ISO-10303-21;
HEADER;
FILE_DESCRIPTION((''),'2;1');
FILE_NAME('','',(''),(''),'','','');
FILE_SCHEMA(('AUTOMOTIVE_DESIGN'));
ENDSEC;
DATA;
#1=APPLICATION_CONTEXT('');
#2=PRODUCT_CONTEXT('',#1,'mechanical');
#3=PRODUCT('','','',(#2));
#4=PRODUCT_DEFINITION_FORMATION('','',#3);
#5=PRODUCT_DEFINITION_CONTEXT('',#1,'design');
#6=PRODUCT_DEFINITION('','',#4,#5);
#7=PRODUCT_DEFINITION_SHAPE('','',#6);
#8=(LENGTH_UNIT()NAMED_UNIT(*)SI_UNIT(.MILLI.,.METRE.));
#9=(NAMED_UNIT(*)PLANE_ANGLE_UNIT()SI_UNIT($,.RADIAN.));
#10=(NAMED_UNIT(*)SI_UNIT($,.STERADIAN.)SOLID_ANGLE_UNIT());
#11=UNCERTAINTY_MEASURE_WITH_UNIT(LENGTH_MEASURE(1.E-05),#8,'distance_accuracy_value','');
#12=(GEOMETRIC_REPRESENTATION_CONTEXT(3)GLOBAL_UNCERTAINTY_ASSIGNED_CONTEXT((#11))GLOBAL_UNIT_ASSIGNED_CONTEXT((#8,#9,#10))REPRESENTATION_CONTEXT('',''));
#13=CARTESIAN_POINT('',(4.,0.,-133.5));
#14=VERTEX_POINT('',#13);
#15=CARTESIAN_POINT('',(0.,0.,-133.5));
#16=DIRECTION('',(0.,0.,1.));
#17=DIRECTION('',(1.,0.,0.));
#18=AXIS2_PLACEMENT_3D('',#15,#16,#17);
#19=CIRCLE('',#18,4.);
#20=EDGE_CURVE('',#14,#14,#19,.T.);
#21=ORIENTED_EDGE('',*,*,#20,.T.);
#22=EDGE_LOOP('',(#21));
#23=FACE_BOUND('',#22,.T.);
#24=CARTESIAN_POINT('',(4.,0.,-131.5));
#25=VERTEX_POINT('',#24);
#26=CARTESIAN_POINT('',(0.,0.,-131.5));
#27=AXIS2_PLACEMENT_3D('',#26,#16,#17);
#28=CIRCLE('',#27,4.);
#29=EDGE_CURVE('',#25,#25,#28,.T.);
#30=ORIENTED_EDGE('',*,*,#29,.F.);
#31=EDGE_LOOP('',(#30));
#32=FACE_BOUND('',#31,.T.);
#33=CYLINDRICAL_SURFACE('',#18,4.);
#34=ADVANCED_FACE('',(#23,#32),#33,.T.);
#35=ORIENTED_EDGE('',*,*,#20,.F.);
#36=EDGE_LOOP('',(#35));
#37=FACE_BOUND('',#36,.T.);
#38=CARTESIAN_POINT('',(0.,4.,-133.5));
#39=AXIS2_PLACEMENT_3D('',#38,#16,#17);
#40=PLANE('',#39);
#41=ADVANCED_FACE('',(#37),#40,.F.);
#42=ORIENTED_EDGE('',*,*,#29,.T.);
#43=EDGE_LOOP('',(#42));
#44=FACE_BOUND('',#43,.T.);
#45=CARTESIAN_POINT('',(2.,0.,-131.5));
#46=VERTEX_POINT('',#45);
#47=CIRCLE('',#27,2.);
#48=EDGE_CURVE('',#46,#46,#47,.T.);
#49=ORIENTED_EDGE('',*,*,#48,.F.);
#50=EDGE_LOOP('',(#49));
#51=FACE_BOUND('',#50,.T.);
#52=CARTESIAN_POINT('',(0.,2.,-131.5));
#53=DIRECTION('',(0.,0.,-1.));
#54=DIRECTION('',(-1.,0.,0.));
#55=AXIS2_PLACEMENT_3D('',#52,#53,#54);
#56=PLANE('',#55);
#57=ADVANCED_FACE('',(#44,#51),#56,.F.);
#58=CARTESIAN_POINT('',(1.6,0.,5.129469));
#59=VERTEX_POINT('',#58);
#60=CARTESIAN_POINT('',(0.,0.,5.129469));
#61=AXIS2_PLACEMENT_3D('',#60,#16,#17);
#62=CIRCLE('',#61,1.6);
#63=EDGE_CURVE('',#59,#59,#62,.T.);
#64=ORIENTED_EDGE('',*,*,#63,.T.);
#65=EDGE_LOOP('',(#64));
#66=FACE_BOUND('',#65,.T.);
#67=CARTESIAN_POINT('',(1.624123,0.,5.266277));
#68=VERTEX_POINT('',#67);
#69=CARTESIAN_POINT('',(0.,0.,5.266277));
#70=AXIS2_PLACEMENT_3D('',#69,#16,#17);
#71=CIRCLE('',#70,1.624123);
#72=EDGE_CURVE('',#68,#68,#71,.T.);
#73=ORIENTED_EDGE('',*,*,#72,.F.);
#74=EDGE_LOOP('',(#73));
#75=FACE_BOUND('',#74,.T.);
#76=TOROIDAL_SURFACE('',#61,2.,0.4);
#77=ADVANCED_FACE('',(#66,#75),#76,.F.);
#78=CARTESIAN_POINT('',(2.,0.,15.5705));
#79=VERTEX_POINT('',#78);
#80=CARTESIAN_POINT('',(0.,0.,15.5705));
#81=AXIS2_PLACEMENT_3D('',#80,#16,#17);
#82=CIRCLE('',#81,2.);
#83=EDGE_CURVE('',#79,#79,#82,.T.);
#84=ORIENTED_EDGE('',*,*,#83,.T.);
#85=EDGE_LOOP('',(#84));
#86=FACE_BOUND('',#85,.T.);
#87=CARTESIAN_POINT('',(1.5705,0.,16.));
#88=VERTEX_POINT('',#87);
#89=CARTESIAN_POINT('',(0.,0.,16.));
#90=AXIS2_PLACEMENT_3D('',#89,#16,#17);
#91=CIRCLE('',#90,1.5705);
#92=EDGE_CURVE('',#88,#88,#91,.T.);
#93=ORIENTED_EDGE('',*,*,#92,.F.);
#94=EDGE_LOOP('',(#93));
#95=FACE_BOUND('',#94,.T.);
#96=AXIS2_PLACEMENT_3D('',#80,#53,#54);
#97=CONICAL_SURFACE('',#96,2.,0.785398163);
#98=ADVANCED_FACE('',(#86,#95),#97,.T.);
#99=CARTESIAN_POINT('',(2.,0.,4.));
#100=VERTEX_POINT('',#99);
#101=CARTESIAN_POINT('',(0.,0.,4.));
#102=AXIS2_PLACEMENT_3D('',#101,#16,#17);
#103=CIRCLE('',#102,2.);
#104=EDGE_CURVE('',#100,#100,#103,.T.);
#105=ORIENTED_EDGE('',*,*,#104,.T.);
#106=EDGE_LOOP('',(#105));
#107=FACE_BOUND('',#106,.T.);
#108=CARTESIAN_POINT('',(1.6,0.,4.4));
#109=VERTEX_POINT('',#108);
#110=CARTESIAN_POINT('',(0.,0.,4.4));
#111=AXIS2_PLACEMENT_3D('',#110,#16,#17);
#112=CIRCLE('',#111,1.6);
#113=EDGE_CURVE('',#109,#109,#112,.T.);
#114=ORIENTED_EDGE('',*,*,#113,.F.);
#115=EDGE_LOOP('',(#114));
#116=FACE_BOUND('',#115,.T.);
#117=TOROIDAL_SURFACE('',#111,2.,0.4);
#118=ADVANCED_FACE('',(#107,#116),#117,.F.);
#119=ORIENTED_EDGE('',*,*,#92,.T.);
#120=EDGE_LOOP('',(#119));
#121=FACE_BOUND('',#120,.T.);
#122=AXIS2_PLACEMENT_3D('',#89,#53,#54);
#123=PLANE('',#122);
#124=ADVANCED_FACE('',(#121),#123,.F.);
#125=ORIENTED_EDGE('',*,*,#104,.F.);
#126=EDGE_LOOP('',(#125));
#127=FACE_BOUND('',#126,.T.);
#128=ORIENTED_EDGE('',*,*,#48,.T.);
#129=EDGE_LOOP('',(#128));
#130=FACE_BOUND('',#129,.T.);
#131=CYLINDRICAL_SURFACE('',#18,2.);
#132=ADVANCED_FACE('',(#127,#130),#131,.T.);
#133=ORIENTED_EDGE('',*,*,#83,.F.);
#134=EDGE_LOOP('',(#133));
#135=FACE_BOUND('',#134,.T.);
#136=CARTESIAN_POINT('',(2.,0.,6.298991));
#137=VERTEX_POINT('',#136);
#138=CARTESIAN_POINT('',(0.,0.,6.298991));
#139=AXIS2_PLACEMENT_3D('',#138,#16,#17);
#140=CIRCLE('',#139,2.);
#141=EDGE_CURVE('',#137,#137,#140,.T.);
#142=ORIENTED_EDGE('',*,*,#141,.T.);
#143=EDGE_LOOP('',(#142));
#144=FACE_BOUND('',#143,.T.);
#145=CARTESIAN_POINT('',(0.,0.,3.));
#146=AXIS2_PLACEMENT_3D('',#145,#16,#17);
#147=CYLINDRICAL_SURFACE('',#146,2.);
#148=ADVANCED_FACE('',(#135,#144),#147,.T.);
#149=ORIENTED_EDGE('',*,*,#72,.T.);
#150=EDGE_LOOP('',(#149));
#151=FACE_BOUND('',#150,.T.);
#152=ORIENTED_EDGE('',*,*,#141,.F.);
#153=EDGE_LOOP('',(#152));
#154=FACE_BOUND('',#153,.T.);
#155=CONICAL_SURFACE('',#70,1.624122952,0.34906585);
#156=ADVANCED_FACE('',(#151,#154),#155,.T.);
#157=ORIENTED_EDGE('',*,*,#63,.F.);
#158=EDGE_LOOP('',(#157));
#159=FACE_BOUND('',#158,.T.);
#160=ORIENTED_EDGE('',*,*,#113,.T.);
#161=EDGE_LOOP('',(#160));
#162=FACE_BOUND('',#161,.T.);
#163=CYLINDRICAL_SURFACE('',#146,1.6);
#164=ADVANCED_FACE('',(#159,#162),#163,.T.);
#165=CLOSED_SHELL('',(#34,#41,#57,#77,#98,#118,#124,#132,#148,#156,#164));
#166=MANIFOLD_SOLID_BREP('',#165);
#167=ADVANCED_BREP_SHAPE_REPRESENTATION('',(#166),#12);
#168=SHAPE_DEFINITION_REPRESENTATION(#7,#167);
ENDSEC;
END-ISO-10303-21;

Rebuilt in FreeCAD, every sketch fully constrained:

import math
import FreeCAD as App
import Part
import Sketcher
from FreeCAD import Vector
Q = App.Units.Quantity


def add_polygon(sketch, points):
    """Adds a closed chain of lines whose ends are joined by coincident constraints."""
    first, n = sketch.GeometryCount, len(points)
    for a, b in zip(points, points[1:] + points[:1]):
        sketch.addGeometry(Part.LineSegment(App.Vector(*a, 0), App.Vector(*b, 0)), False)
    for i in range(n):
        sketch.addConstraint(Sketcher.Constraint("Coincident", first + i, 2, first + (i + 1) % n, 1))

doc = App.newDocument("Part")
body = doc.addObject("PartDesign::Body", "Body")

sketch1 = doc.addObject("Sketcher::SketchObject", "Sketch")
body.addObject(sketch1)
sketch1.AttachmentSupport = (doc.YZ_Plane, [""])
sketch1.MapMode = "FlatFace"
add_polygon(sketch1, [(2, 4), (0, 4), (0, -133.5), (4, -133.5), (4, -131.5), (2, -131.5)])
sketch1.addConstraint(Sketcher.Constraint("Horizontal", 0))
sketch1.addConstraint(Sketcher.Constraint("Vertical", 1))
sketch1.addConstraint(Sketcher.Constraint("Horizontal", 2))
sketch1.addConstraint(Sketcher.Constraint("Vertical", 3))
sketch1.addConstraint(Sketcher.Constraint("Horizontal", 4))
sketch1.addConstraint(Sketcher.Constraint("Vertical", 5))
sketch1.addConstraint(Sketcher.Constraint("PointOnObject", 0, 2, -2))
sketch1.addConstraint(Sketcher.Constraint("Equal", 0, 4))
sketch1.addConstraint(Sketcher.Constraint("Equal", 4, 3))
sketch1.addConstraint(Sketcher.Constraint("DistanceX", 0, 2, 0, 1, 2.0))
sketch1.addConstraint(Sketcher.Constraint("DistanceY", 1, 2, 1, 1, 137.5))
sketch1.addConstraint(Sketcher.Constraint("DistanceY", -1, 1, 0, 2, 4.0))
revolution = doc.addObject("PartDesign::Revolution", "Revolution")
body.addObject(revolution)
revolution.Profile = sketch1
revolution.ReferenceAxis = (sketch1, ["V_Axis"])
revolution.Angle = 360

sketch2 = doc.addObject("Sketcher::SketchObject", "Sketch001")
body.addObject(sketch2)
sketch2.AttachmentSupport = (doc.YZ_Plane, [""])
sketch2.MapMode = "FlatFace"
sketch2.addGeometry(Part.LineSegment(Vector(1.57, 16, 0), Vector(0, 16, 0)), False)
sketch2.addGeometry(Part.LineSegment(Vector(0, 16, 0), Vector(0, 3, 0)), False)
sketch2.addGeometry(Part.LineSegment(Vector(0, 3, 0), Vector(2, 3, 0)), False)
sketch2.addGeometry(Part.LineSegment(Vector(2, 3, 0), Vector(2, 4, 0)), False)
sketch2.addGeometry(Part.ArcOfCircle(Part.Circle(Vector(2, 4.4, 0), Vector(0, 0, 1), 0.4), math.radians(-180), math.radians(-90)), False)
sketch2.addGeometry(Part.LineSegment(Vector(1.6, 4.4, 0), Vector(1.6, 5.13, 0)), False)
sketch2.addGeometry(Part.ArcOfCircle(Part.Circle(Vector(2, 5.13, 0), Vector(0, 0, 1), 0.4), math.radians(160), math.radians(180)), False)
sketch2.addGeometry(Part.LineSegment(Vector(1.62, 5.27, 0), Vector(2, 6.3, 0)), False)
sketch2.addGeometry(Part.LineSegment(Vector(2, 6.3, 0), Vector(2, 15.57, 0)), False)
sketch2.addGeometry(Part.LineSegment(Vector(2, 15.57, 0), Vector(1.57, 16, 0)), False)
sketch2.addConstraint(Sketcher.Constraint("Coincident", 0, 2, 1, 1))
sketch2.addConstraint(Sketcher.Constraint("Coincident", 1, 2, 2, 1))
sketch2.addConstraint(Sketcher.Constraint("Coincident", 2, 2, 3, 1))
sketch2.addConstraint(Sketcher.Constraint("Coincident", 3, 2, 4, 2))
sketch2.addConstraint(Sketcher.Constraint("Tangent", 4, 1, 5, 1))
sketch2.addConstraint(Sketcher.Constraint("Tangent", 5, 2, 6, 2))
sketch2.addConstraint(Sketcher.Constraint("Tangent", 6, 1, 7, 1))
sketch2.addConstraint(Sketcher.Constraint("Coincident", 7, 2, 8, 1))
sketch2.addConstraint(Sketcher.Constraint("Coincident", 8, 2, 9, 1))
sketch2.addConstraint(Sketcher.Constraint("Coincident", 9, 2, 0, 1))
sketch2.addConstraint(Sketcher.Constraint("Horizontal", 0))
sketch2.addConstraint(Sketcher.Constraint("Vertical", 1))
sketch2.addConstraint(Sketcher.Constraint("Horizontal", 2))
sketch2.addConstraint(Sketcher.Constraint("Vertical", 3))
sketch2.addConstraint(Sketcher.Constraint("Vertical", 5))
sketch2.addConstraint(Sketcher.Constraint("Vertical", 8))
sketch2.addConstraint(Sketcher.Constraint("Equal", 4, 6))
sketch2.addConstraint(Sketcher.Constraint("PointOnObject", 0, 2, -2))
sketch2.addConstraint(Sketcher.Constraint("Vertical", 6, 3, 2, 2))
sketch2.addConstraint(Sketcher.Constraint("Vertical", 3, 2, 7, 2))
sketch2.addConstraint(Sketcher.Constraint("Radius", 4, 0.4))
sketch2.addConstraint(Sketcher.Constraint("DistanceX", 2, 1, 2, 2, 2.0))
sketch2.addConstraint(Sketcher.Constraint("DistanceY", 1, 2, 1, 1, 13.0))
sketch2.addConstraint(Sketcher.Constraint("DistanceY", 3, 1, 3, 2, 1.0))
sketch2.addConstraint(Sketcher.Constraint("Angle", 7, Q("70 deg")))
sketch2.addConstraint(Sketcher.Constraint("Angle", 9, Q("135 deg")))
sketch2.addConstraint(Sketcher.Constraint("DistanceY", -1, 1, 0, 2, 16.0))
sketch2.addConstraint(Sketcher.Constraint("DistanceX", 0, 2, 0, 1, 1.5705))
sketch2.addConstraint(Sketcher.Constraint("DistanceY", 5, 1, 5, 2, 0.729469))
revolution2 = doc.addObject("PartDesign::Revolution", "Revolution001")
body.addObject(revolution2)
revolution2.Profile = sketch2
revolution2.ReferenceAxis = (sketch2, ["V_Axis"])
revolution2.Angle = 360

doc.recompute()
